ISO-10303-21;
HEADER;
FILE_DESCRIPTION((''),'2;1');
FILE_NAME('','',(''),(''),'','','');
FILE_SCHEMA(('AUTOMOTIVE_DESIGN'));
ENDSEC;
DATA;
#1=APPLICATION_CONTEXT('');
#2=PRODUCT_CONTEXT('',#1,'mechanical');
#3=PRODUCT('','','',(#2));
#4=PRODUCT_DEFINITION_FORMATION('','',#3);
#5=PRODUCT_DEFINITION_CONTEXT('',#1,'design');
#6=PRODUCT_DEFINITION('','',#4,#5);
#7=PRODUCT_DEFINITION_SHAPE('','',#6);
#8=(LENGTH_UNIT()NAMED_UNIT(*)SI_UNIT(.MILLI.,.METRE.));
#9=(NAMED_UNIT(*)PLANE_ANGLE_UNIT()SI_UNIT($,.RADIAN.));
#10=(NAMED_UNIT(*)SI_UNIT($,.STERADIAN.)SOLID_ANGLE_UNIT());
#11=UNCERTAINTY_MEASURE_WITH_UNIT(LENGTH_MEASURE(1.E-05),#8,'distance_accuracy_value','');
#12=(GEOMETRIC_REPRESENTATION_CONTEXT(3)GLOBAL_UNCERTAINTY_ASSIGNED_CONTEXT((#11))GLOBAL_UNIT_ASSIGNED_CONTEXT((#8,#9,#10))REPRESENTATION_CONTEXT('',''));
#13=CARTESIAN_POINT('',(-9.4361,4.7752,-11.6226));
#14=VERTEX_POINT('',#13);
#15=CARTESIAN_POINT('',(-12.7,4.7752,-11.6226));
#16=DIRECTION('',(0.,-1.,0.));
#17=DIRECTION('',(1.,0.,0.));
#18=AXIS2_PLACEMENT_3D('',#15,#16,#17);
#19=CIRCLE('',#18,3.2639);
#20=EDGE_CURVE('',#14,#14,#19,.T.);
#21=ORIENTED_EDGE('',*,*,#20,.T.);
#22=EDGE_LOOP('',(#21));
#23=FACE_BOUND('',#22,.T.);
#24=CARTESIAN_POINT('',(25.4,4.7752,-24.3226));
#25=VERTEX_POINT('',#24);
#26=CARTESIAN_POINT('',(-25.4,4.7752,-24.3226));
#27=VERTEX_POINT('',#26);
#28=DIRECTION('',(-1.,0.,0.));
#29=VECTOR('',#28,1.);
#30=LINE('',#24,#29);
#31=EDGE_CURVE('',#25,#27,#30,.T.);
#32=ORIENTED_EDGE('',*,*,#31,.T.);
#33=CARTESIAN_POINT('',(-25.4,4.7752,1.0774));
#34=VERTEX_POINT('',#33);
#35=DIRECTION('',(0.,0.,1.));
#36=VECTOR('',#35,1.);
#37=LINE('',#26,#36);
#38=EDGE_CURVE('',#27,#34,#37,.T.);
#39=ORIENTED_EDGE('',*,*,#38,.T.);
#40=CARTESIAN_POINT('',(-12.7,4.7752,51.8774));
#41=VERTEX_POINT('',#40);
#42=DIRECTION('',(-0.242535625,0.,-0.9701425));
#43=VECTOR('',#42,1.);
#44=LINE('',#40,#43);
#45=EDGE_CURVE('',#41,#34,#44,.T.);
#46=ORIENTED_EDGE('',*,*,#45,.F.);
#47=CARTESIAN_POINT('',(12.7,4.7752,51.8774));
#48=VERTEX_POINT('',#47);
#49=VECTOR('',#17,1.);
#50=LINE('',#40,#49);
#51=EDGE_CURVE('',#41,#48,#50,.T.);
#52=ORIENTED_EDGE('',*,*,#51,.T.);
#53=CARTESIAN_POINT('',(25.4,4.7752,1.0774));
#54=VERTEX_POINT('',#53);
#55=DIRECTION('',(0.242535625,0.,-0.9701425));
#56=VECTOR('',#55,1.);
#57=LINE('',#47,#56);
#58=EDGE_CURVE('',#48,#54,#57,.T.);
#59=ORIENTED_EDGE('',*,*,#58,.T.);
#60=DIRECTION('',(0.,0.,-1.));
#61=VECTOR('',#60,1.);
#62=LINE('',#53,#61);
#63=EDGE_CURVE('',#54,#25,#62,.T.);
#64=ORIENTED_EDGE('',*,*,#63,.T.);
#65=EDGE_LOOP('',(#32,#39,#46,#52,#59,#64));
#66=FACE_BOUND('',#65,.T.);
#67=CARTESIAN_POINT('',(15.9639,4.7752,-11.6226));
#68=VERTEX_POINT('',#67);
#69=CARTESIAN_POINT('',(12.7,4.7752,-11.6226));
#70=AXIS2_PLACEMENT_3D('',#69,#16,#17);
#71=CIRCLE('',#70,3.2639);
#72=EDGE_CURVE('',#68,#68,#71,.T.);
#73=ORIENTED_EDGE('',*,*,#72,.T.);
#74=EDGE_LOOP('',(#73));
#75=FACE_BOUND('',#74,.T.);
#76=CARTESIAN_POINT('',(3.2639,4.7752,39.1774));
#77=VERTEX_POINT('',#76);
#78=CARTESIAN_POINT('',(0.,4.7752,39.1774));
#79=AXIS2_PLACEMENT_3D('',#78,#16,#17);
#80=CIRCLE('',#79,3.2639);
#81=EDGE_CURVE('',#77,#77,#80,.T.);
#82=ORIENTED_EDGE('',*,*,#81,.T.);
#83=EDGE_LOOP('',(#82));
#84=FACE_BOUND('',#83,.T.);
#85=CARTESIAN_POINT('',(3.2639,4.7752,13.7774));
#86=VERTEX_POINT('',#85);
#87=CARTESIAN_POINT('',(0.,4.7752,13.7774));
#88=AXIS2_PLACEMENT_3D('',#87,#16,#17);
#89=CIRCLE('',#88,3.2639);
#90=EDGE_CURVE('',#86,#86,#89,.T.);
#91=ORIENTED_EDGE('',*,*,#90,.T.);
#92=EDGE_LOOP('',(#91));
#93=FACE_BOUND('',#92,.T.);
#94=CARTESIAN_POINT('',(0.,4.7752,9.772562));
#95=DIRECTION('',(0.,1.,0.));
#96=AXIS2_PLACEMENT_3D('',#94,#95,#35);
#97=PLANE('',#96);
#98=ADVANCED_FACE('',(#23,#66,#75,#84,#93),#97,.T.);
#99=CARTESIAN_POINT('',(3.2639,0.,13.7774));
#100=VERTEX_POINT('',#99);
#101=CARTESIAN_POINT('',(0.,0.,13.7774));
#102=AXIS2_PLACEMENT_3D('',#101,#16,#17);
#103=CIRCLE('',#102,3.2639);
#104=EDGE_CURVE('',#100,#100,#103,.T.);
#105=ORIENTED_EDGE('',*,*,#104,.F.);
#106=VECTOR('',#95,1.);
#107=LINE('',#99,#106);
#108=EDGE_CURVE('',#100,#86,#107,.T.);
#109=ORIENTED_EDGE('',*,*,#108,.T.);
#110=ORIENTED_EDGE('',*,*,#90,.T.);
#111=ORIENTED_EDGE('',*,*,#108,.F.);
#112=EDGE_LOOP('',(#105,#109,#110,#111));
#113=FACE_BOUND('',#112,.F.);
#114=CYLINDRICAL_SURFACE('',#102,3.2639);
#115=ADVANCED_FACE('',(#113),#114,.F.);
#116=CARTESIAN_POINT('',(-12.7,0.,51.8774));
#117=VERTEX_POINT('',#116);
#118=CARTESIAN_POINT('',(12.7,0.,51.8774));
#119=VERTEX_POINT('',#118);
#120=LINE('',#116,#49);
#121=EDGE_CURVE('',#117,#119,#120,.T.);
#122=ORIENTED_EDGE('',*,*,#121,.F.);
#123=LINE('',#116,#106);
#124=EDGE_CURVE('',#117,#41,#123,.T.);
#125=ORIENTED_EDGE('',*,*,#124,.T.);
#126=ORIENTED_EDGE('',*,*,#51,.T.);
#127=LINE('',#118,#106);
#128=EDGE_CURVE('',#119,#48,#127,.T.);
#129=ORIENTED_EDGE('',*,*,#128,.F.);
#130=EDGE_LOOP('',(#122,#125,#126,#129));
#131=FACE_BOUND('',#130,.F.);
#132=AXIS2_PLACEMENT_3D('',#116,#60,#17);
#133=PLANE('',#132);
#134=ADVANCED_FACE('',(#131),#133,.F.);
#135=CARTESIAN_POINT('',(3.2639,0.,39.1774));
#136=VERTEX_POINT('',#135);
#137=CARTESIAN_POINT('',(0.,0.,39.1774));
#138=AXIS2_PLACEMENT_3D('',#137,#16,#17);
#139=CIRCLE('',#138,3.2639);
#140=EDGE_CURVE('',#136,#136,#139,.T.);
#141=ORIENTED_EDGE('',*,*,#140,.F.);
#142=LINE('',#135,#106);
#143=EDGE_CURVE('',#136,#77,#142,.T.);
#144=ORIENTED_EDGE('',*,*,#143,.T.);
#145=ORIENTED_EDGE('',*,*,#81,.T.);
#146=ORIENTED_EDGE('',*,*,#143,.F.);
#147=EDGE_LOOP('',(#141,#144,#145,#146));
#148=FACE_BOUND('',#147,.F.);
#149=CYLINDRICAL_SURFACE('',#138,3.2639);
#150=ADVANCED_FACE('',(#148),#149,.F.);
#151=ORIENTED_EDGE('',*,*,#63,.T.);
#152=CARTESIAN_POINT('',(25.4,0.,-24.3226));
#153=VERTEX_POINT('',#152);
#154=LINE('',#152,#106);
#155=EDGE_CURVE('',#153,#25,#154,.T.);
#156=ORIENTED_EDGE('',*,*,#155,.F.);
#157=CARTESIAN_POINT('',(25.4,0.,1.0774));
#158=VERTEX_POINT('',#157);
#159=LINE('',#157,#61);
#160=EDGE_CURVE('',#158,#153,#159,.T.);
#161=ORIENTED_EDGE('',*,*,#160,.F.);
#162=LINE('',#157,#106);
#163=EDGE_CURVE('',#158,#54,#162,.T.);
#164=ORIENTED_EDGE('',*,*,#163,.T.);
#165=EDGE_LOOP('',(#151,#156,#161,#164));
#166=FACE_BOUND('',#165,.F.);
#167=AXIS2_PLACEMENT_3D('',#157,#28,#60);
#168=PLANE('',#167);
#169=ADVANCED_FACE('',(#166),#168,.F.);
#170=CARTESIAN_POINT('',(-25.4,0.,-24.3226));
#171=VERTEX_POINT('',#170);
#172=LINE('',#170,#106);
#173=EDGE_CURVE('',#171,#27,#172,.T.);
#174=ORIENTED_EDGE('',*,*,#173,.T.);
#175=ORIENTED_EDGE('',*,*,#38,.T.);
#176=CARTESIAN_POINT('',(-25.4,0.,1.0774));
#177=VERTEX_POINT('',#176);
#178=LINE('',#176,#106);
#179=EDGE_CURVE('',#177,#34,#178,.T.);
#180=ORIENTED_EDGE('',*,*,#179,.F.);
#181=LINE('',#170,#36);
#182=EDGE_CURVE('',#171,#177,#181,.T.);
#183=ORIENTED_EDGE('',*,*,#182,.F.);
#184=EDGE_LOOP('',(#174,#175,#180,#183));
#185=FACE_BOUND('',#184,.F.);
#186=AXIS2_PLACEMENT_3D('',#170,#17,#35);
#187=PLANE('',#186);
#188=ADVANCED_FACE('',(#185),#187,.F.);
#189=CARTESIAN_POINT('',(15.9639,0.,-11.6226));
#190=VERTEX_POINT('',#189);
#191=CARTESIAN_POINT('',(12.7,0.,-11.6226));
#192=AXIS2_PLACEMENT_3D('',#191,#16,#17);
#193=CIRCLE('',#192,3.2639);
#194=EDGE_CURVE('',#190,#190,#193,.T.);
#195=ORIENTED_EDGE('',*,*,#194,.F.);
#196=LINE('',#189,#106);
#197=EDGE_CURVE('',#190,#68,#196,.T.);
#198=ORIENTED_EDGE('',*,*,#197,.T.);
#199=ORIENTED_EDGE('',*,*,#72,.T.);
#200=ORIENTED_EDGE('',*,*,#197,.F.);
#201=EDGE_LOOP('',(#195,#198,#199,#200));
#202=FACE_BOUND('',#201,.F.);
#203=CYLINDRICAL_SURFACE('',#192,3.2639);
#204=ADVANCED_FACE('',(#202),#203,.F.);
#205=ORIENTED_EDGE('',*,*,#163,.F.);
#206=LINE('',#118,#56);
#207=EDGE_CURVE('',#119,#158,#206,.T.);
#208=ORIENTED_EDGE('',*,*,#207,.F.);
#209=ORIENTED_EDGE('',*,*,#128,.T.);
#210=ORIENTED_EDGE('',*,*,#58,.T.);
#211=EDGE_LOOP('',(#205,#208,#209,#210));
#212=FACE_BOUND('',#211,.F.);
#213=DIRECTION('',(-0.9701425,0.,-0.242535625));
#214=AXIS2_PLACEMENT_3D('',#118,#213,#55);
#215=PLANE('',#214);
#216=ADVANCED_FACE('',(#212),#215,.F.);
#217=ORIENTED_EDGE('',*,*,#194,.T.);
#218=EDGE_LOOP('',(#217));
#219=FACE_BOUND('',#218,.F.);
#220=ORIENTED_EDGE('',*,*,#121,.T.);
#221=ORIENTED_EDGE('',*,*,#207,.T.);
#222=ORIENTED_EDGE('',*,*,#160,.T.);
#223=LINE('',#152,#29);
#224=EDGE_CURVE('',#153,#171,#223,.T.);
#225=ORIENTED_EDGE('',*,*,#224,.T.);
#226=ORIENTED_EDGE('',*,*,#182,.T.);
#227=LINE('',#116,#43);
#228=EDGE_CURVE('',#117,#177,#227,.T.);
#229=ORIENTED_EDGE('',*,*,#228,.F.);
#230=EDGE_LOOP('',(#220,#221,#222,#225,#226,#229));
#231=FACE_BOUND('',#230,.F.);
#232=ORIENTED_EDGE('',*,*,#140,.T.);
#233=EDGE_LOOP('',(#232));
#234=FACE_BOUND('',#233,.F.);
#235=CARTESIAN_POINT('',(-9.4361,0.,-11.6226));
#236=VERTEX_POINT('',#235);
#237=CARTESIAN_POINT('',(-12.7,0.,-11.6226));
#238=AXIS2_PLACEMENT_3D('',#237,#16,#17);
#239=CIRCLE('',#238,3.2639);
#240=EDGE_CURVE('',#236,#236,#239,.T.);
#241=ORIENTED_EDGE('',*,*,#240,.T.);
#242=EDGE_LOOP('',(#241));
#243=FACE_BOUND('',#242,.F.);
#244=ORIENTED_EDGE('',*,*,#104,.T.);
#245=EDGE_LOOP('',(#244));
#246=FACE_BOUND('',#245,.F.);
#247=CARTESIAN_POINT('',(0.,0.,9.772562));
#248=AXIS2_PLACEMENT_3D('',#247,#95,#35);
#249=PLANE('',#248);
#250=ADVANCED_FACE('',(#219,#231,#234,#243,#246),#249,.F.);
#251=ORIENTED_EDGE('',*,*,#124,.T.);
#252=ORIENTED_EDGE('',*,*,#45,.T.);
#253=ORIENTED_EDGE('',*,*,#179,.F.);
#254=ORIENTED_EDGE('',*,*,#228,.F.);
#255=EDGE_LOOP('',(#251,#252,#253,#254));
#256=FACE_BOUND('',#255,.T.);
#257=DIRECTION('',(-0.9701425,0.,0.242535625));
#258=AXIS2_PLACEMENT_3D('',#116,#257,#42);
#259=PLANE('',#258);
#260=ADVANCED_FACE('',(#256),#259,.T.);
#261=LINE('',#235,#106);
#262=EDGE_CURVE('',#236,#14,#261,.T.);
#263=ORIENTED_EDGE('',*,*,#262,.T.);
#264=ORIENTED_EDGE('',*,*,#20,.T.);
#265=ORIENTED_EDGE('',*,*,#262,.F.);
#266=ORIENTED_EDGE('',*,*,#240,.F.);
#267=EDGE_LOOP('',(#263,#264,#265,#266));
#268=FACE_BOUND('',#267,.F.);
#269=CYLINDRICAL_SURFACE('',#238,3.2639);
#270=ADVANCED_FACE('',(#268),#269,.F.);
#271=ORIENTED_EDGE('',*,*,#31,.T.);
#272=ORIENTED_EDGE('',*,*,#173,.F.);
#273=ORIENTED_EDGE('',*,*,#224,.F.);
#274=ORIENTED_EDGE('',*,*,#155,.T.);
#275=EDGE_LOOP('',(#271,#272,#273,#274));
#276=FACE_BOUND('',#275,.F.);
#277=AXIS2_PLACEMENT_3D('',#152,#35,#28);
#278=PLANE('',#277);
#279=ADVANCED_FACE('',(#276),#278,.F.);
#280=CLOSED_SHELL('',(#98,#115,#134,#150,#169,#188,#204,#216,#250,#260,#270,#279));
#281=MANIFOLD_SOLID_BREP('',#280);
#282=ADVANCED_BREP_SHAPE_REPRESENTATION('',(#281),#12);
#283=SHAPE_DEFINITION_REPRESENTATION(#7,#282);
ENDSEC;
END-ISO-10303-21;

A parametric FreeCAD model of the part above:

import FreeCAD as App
import Part
import Sketcher
Q = App.Units.Quantity


def add_polygon(sketch, points):
    """Adds a closed chain of lines whose ends are joined by coincident constraints."""
    first, n = sketch.GeometryCount, len(points)
    for a, b in zip(points, points[1:] + points[:1]):
        sketch.addGeometry(Part.LineSegment(App.Vector(*a, 0), App.Vector(*b, 0)), False)
    for i in range(n):
        sketch.addConstraint(Sketcher.Constraint("Coincident", first + i, 2, first + (i + 1) % n, 1))

doc = App.newDocument("Part")
params = doc.addObject("Spreadsheet::Sheet", "Params")
for row, (alias, value) in enumerate([
    ("sketch1_width", "1 in"),
    ("sketch1_width2", "2 in"),
    ("sketch1_diameter", "0.257 in"),
    ("pad1_length", "0.188 in"),
], start=1):
    params.set(f"A{row}", alias)
    params.set(f"B{row}", "=" + value)
    params.setAlias(f"B{row}", alias)

body = doc.addObject("PartDesign::Body", "Body")

# Sketch on XZ plane
sketch1 = doc.addObject("Sketcher::SketchObject", "Sketch")
body.addObject(sketch1)
sketch1.AttachmentSupport = (doc.XZ_Plane, [""])
sketch1.MapMode = "FlatFace"
add_polygon(sketch1, [(25.4, 1.1), (12.7, 51.9), (-12.7, 51.9), (-25.4, 1.1), (-25.4, -24.3), (25.4, -24.3)])  # lines 0-5
sketch1.addGeometry(Part.Circle(App.Vector(-12.7, -11.6, 0), App.Vector(0, 0, 1), 3.3), False)  # 6
sketch1.addGeometry(Part.Circle(App.Vector(12.7, -11.6, 0), App.Vector(0, 0, 1), 3.3), False)  # 7
sketch1.addGeometry(Part.Circle(App.Vector(0, 13.8, 0), App.Vector(0, 0, 1), 3.3), False)  # 8
sketch1.addGeometry(Part.Circle(App.Vector(0, 39.2, 0), App.Vector(0, 0, 1), 3.3), False)  # 9
sketch1.addConstraint(Sketcher.Constraint("Horizontal", 1))
sketch1.addConstraint(Sketcher.Constraint("Vertical", 3))
sketch1.addConstraint(Sketcher.Constraint("Horizontal", 4))
sketch1.addConstraint(Sketcher.Constraint("Vertical", 5))
sketch1.addConstraint(Sketcher.Constraint("Equal", 6, 7))
sketch1.addConstraint(Sketcher.Constraint("Equal", 7, 8))
sketch1.addConstraint(Sketcher.Constraint("Equal", 8, 9))
sketch1.addConstraint(Sketcher.Constraint("Symmetric", 6, 3, 7, 3, -2))
sketch1.addConstraint(Sketcher.Constraint("Symmetric", 2, 2, 5, 2, -2))
sketch1.addConstraint(Sketcher.Constraint("PointOnObject", 8, 3, -2))
sketch1.addConstraint(Sketcher.Constraint("PointOnObject", 9, 3, -2))
sketch1.addConstraint(Sketcher.Constraint("Vertical", 7, 3, 0, 2))
sketch1.addConstraint(Sketcher.Constraint("Vertical", 6, 3, 1, 2))
sketch1.addConstraint(Sketcher.Constraint("Equal", 1, 3))
sketch1.addConstraint(Sketcher.Constraint("DistanceX", 1, 2, 1, 1, Q("1 in")))
sketch1.addConstraint(Sketcher.Constraint("DistanceX", 4, 1, 4, 2, Q("2 in")))
sketch1.addConstraint(Sketcher.Constraint("Diameter", 6, Q("0.257 in")))
sketch1.addConstraint(Sketcher.Constraint("DistanceY", 6, 3, 8, 3, Q("1 in")))
sketch1.addConstraint(Sketcher.Constraint("DistanceY", 8, 3, 9, 3, Q("1 in")))
sketch1.addConstraint(Sketcher.Constraint("DistanceY", 2, 2, 1, 2, Q("2 in")))
sketch1.addConstraint(Sketcher.Constraint("DistanceY", 9, 3, 0, 2, Q("0.5 in")))
sketch1.addConstraint(Sketcher.Constraint("DistanceY", 6, 3, -1, 1, 11.6226))
sketch1.setExpression("Constraints[20]", "Params.sketch1_width")
sketch1.setExpression("Constraints[21]", "Params.sketch1_width2")
sketch1.setExpression("Constraints[22]", "Params.sketch1_diameter")
pad1 = doc.addObject("PartDesign::Pad", "Pad")
body.addObject(pad1)
pad1.Profile = sketch1
pad1.setExpression("Length", "Params.pad1_length")
pad1.Reversed = True

doc.recompute()
